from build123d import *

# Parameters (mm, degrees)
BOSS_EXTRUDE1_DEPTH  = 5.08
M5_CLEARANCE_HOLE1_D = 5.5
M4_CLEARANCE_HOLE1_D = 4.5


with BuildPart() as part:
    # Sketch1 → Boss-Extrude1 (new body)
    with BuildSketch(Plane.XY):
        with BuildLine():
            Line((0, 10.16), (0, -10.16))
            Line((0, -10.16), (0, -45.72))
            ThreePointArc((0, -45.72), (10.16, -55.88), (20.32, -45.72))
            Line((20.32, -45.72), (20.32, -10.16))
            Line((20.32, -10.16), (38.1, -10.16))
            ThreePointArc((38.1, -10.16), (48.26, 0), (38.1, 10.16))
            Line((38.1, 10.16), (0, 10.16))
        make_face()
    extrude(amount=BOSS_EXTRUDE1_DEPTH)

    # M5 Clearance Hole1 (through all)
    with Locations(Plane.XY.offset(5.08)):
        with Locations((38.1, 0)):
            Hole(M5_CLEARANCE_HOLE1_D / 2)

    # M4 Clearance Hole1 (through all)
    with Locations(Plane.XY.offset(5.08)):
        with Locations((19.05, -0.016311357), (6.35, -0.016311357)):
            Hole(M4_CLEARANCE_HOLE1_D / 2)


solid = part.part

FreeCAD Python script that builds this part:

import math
import FreeCAD as App
import Part
import Sketcher
from FreeCAD import Vector
Q = App.Units.Quantity

doc = App.newDocument("Part")
body = doc.addObject("PartDesign::Body", "Body")

sketch1 = body.newObject("Sketcher::SketchObject", "Sketch")
sketch1.AttachmentSupport = (doc.getObject("XY_Plane"), [""])
sketch1.MapMode = "FlatFace"
sketch1.addGeometry(Part.LineSegment(Vector(0, 10, 0), Vector(0, -46, 0)), False)
sketch1.addGeometry(Part.ArcOfCircle(Part.Circle(Vector(10, -46, 0), Vector(0, 0, 1), 10), math.radians(180), math.radians(360)), False)
sketch1.addGeometry(Part.LineSegment(Vector(20, -46, 0), Vector(20, -10, 0)), False)
sketch1.addGeometry(Part.LineSegment(Vector(20, -10, 0), Vector(38, -10, 0)), False)
sketch1.addGeometry(Part.ArcOfCircle(Part.Circle(Vector(38, 0, 0), Vector(0, 0, 1), 10), math.radians(-90), math.radians(90)), False)
sketch1.addGeometry(Part.LineSegment(Vector(38, 10, 0), Vector(0, 10, 0)), False)
sketch1.addConstraint(Sketcher.Constraint("Tangent", 0, 2, 1, 1))
sketch1.addConstraint(Sketcher.Constraint("Tangent", 1, 2, 2, 1))
sketch1.addConstraint(Sketcher.Constraint("Coincident", 2, 2, 3, 1))
sketch1.addConstraint(Sketcher.Constraint("Tangent", 3, 2, 4, 1))
sketch1.addConstraint(Sketcher.Constraint("Tangent", 4, 2, 5, 1))
sketch1.addConstraint(Sketcher.Constraint("Coincident", 5, 2, 0, 1))
sketch1.addConstraint(Sketcher.Constraint("Vertical", 0))
sketch1.addConstraint(Sketcher.Constraint("Vertical", 2))
sketch1.addConstraint(Sketcher.Constraint("Horizontal", 3))
sketch1.addConstraint(Sketcher.Constraint("Horizontal", 5))
sketch1.addConstraint(Sketcher.Constraint("Equal", 1, 4))
sketch1.addConstraint(Sketcher.Constraint("PointOnObject", 4, 3, -1))
sketch1.addConstraint(Sketcher.Constraint("PointOnObject", 0, 2, -2))
sketch1.addConstraint(Sketcher.Constraint("Radius", 1, Q("0.4 in")))
sketch1.addConstraint(Sketcher.Constraint("DistanceX", 3, 1, 3, 2, Q("0.7 in")))
sketch1.addConstraint(Sketcher.Constraint("DistanceY", 0, 2, 0, 1, Q("2.2 in")))
pad1 = body.newObject("PartDesign::Pad", "Pad")
pad1.Profile = sketch1
pad1.Length = Q("0.2 in")

sketch2 = body.newObject("Sketcher::SketchObject", "Sketch001")
sketch2.AttachmentSupport = (doc.getObject("XY_Plane"), [""])
sketch2.MapMode = "FlatFace"
sketch2.AttachmentOffset = App.Placement(Vector(0, 0, 0.2 * 25.4), App.Rotation())
sketch2.addGeometry(Part.Circle(Vector(38.1, 0, 0), Vector(0, 0, 1), 2.8), False)
sketch2.addConstraint(Sketcher.Constraint("PointOnObject", 0, 3, -1))
sketch2.addConstraint(Sketcher.Constraint("DistanceX", -1, 1, 0, 3, Q("1.5 in")))
sketch2.addConstraint(Sketcher.Constraint("Diameter", 0, 5.5))
doc.recompute()
hole = body.newObject("PartDesign::Hole", "Hole")
hole.Profile = sketch2
hole.ThreadType = "None"
hole.Diameter = 5.5
hole.DepthType = "ThroughAll"

sketch3 = body.newObject("Sketcher::SketchObject", "Sketch002")
sketch3.AttachmentSupport = (doc.getObject("XY_Plane"), [""])
sketch3.MapMode = "FlatFace"
sketch3.AttachmentOffset = App.Placement(Vector(0, 0, 0.2 * 25.4), App.Rotation())
sketch3.addGeometry(Part.Circle(Vector(19.1, 0, 0), Vector(0, 0, 1), 2.2), False)
sketch3.addGeometry(Part.Circle(Vector(6.3, 0, 0), Vector(0, 0, 1), 2.2), False)
sketch3.addConstraint(Sketcher.Constraint("Equal", 0, 1))
sketch3.addConstraint(Sketcher.Constraint("Horizontal", 0, 3, 1, 3))
sketch3.addConstraint(Sketcher.Constraint("DistanceX", 1, 3, 0, 3, Q("0.5 in")))
sketch3.addConstraint(Sketcher.Constraint("Diameter", 0, 4.5))
sketch3.addConstraint(Sketcher.Constraint("DistanceX", -1, 1, 0, 3, Q("0.75 in")))
sketch3.addConstraint(Sketcher.Constraint("DistanceY", 0, 3, -1, 1, 0.016311))
doc.recompute()
hole2 = body.newObject("PartDesign::Hole", "Hole001")
hole2.Profile = sketch3
hole2.ThreadType = "None"
hole2.Diameter = 4.5
hole2.DepthType = "ThroughAll"

doc.recompute()
